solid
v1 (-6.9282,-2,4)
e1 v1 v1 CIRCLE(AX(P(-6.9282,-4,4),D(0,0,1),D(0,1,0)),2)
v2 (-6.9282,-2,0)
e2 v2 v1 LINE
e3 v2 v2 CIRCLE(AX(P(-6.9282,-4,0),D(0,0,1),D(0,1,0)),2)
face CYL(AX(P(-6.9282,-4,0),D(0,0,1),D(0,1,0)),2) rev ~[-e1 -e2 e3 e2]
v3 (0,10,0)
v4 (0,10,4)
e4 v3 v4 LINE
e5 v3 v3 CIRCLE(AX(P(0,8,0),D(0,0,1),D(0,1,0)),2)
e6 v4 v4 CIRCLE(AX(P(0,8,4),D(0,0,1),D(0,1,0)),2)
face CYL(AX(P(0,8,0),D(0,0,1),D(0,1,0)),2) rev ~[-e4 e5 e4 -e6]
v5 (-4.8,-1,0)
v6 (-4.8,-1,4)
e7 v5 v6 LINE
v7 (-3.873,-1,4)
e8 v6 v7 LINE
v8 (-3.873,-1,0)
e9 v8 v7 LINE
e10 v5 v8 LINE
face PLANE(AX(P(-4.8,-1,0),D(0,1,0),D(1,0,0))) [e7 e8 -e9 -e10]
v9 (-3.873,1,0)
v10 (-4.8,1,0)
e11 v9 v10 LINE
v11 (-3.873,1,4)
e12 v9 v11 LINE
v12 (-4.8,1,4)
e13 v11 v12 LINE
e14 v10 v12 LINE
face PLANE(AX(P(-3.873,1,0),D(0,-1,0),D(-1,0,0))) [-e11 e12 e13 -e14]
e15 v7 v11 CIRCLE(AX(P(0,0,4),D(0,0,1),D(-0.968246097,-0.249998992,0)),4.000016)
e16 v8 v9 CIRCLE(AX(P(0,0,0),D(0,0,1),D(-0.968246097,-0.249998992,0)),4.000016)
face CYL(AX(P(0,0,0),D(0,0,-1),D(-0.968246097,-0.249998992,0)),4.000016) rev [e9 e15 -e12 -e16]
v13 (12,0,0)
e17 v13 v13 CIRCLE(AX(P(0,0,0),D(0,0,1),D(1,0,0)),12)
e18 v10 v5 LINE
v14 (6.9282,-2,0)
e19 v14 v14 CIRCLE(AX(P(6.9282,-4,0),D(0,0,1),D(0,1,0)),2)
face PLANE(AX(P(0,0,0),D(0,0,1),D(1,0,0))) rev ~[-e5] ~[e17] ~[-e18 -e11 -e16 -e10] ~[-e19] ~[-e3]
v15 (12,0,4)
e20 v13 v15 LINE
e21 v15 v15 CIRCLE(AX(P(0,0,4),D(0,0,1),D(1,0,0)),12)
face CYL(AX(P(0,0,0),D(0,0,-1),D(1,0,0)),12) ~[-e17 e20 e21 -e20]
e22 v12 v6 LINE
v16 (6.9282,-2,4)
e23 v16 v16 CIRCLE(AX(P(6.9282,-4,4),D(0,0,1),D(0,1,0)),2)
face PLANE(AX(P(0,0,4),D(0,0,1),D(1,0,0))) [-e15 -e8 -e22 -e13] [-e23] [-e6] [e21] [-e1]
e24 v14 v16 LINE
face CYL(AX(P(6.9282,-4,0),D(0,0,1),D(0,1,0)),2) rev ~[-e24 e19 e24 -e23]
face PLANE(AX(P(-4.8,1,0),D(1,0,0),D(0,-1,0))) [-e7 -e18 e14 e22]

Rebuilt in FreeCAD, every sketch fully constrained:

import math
import FreeCAD as App
import Part
import Sketcher
from FreeCAD import Vector
Q = App.Units.Quantity

doc = App.newDocument("Part")
params = doc.addObject("Spreadsheet::Sheet", "Params")
for row, (alias, value) in enumerate([
    ("sketch1_diameter", "24 mm"),
    ("sketch1_radius", "4 mm"),
    ("sketch1_height", "2 mm"),
    ("pad1_length", "4 mm"),
    ("sketch2_diameter", "4 mm"),
    ("hole_diameter", "4 mm"),
], start=1):
    params.set(f"A{row}", alias)
    params.set(f"B{row}", "=" + value)
    params.setAlias(f"B{row}", alias)

body = doc.addObject("PartDesign::Body", "Body")

# Sketch on XY plane
sketch1 = body.newObject("Sketcher::SketchObject", "Sketch")
sketch1.AttachmentSupport = (doc.getObject("XY_Plane"), [""])
sketch1.MapMode = "FlatFace"
sketch1.addGeometry(Part.Circle(Vector(0, 0, 0), Vector(0, 0, 1), 12), False)
sketch1.addGeometry(Part.LineSegment(Vector(-4.8, -1, 0), Vector(-4.8, 1, 0)), False)
sketch1.addGeometry(Part.LineSegment(Vector(-4.8, 1, 0), Vector(-3.9, 1, 0)), False)
sketch1.addGeometry(Part.ArcOfCircle(Part.Circle(Vector(0, 0, 0), Vector(0, 0, 1), 4), math.radians(-166), math.radians(166)), False)
sketch1.addGeometry(Part.LineSegment(Vector(-3.9, -1, 0), Vector(-4.8, -1, 0)), False)
sketch1.addConstraint(Sketcher.Constraint("Coincident", 1, 2, 2, 1))
sketch1.addConstraint(Sketcher.Constraint("Coincident", 2, 2, 3, 2))
sketch1.addConstraint(Sketcher.Constraint("Coincident", 3, 1, 4, 1))
sketch1.addConstraint(Sketcher.Constraint("Coincident", 4, 2, 1, 1))
sketch1.addConstraint(Sketcher.Constraint("Vertical", 1))
sketch1.addConstraint(Sketcher.Constraint("Horizontal", 2))
sketch1.addConstraint(Sketcher.Constraint("Horizontal", 4))
sketch1.addConstraint(Sketcher.Constraint("Coincident", 0, 3, -1, 1))
sketch1.addConstraint(Sketcher.Constraint("Coincident", 3, 3, -1, 1))
sketch1.addConstraint(Sketcher.Constraint("Vertical", 2, 2, 3, 1))
sketch1.addConstraint(Sketcher.Constraint("Diameter", 0, Q("24 mm")))
sketch1.addConstraint(Sketcher.Constraint("Radius", 3, Q("4 mm")))
sketch1.addConstraint(Sketcher.Constraint("DistanceY", 1, 1, 1, 2, Q("2 mm")))
sketch1.addConstraint(Sketcher.Constraint("DistanceX", 1, 2, -1, 1, Q("4.8 mm")))
sketch1.setExpression("Constraints[10]", "Params.sketch1_diameter")
sketch1.setExpression("Constraints[11]", "Params.sketch1_radius")
sketch1.setExpression("Constraints[12]", "Params.sketch1_height")
pad1 = body.newObject("PartDesign::Pad", "Pad")
pad1.Profile = sketch1
pad1.setExpression("Length", "Params.pad1_length")

# Sketch on XY plane
sketch2 = body.newObject("Sketcher::SketchObject", "Sketch001")
sketch2.AttachmentSupport = (doc.getObject("XY_Plane"), [""])
sketch2.MapMode = "FlatFace"
sketch2.addGeometry(Part.Circle(Vector(6.9, -4, 0), Vector(0, 0, 1), 2), False)
sketch2.addGeometry(Part.Circle(Vector(0, 8, 0), Vector(0, 0, 1), 2), False)
sketch2.addGeometry(Part.Circle(Vector(-6.9, -4, 0), Vector(0, 0, 1), 2), False)
sketch2.addConstraint(Sketcher.Constraint("Equal", 0, 1))
sketch2.addConstraint(Sketcher.Constraint("Equal", 1, 2))
sketch2.addConstraint(Sketcher.Constraint("Symmetric", 0, 3, 2, 3, -2))
sketch2.addConstraint(Sketcher.Constraint("PointOnObject", 1, 3, -2))
sketch2.addConstraint(Sketcher.Constraint("Diameter", 0, Q("4 mm")))
sketch2.addConstraint(Sketcher.Constraint("DistanceY", 0, 3, -1, 1, Q("4 mm")))
sketch2.addConstraint(Sketcher.Constraint("DistanceY", -1, 1, 1, 3, Q("8 mm")))
sketch2.addConstraint(Sketcher.Constraint("DistanceX", -1, 1, 0, 3, Q("6.9282 mm")))
sketch2.setExpression("Constraints[4]", "Params.sketch2_diameter")
doc.recompute()
hole = body.newObject("PartDesign::Hole", "Hole")
hole.Profile = sketch2
hole.ThreadType = "None"
hole.setExpression("Diameter", "Params.hole_diameter")
hole.DepthType = "ThroughAll"
hole.Reversed = True

doc.recompute()
